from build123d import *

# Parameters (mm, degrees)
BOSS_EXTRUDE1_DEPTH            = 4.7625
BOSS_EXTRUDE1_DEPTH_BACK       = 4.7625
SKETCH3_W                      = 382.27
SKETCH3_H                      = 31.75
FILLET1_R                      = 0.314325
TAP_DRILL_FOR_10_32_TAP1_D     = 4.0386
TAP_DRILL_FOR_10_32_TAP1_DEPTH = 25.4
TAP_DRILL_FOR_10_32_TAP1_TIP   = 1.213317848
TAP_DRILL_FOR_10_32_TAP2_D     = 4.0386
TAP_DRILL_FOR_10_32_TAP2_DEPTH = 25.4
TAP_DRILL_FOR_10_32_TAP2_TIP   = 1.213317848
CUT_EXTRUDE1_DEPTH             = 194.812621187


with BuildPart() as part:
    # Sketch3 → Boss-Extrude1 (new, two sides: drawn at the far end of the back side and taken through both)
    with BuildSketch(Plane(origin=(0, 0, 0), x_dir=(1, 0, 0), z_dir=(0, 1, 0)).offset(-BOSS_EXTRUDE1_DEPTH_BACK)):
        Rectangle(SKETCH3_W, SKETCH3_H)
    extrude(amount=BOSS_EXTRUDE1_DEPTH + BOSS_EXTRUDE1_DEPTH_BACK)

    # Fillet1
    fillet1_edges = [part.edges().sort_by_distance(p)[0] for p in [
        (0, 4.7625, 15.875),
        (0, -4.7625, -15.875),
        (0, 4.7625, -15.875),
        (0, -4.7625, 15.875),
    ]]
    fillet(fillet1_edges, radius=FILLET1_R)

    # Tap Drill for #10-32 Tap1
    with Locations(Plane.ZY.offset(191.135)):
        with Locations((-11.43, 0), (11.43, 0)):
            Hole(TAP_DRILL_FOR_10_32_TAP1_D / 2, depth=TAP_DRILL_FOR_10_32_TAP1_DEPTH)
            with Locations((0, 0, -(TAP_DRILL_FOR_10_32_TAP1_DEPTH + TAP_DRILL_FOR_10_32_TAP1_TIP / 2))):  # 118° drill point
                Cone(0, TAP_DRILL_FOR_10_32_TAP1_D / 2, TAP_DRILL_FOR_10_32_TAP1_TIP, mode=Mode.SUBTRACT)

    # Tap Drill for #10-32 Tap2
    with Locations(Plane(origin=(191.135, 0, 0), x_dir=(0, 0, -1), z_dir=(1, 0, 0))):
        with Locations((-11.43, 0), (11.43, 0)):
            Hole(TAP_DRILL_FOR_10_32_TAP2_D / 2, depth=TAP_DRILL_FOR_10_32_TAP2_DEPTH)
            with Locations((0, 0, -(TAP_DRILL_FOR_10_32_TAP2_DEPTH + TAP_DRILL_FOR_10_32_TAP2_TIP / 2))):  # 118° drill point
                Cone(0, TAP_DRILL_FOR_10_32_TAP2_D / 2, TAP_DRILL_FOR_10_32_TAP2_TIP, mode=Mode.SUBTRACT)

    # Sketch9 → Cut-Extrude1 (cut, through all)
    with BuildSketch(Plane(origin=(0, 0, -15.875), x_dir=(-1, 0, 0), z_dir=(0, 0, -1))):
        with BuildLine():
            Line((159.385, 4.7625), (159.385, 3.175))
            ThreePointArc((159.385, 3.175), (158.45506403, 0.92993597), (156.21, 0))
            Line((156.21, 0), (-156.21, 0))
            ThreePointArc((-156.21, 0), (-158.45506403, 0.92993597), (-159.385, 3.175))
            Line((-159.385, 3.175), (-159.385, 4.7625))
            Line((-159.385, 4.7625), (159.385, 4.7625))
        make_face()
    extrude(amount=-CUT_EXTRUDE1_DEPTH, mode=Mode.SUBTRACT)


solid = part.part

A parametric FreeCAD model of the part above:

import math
import FreeCAD as App
import Part
import Sketcher
from FreeCAD import Vector
Q = App.Units.Quantity


def edges_at(feature, points):
    """Names of the edges that pass closest to the given points."""
    edges = feature.Shape.Edges
    near = lambda p: min(range(len(edges)), key=lambda i: edges[i].distToShape(Part.Vertex(*p))[0])
    return sorted({f"Edge{near(p) + 1}" for p in points})


def add_polygon(sketch, points):
    """Adds a closed chain of lines whose ends are joined by coincident constraints."""
    first, n = sketch.GeometryCount, len(points)
    for a, b in zip(points, points[1:] + points[:1]):
        sketch.addGeometry(Part.LineSegment(App.Vector(*a, 0), App.Vector(*b, 0)), False)
    for i in range(n):
        sketch.addConstraint(Sketcher.Constraint("Coincident", first + i, 2, first + (i + 1) % n, 1))

doc = App.newDocument("Part")
body = doc.addObject("PartDesign::Body", "Body")

sketch1 = body.newObject("Sketcher::SketchObject", "Sketch")
sketch1.AttachmentSupport = (doc.getObject("XZ_Plane"), [""])
sketch1.MapMode = "FlatFace"
add_polygon(sketch1, [(-191.135, -15.875), (-191.135, 15.875), (191.135, 15.875), (191.135, -15.875)])
sketch1.addConstraint([
    Sketcher.Constraint("Vertical", 0),
    Sketcher.Constraint("Horizontal", 1),
    Sketcher.Constraint("Vertical", 2),
    Sketcher.Constraint("Horizontal", 3),
    Sketcher.Constraint("Symmetric", 0, 2, 2, 2, -1, 1),
    Sketcher.Constraint("DistanceX", 1, 1, 1, 2, Q("15.05 in")),
    Sketcher.Constraint("DistanceY", 0, 1, 0, 2, Q("1.25 in")),
])
pad1 = body.newObject("PartDesign::Pad", "Pad")
pad1.Profile = sketch1
pad1.Type = "TwoLengths"
pad1.Length = Q("0.1875 in")
pad1.Length2 = Q("0.1875 in")
pad1.Reversed = True
doc.recompute()

fillet = body.newObject("PartDesign::Fillet", "Fillet")
fillet.Base = (pad1, edges_at(pad1, [
    (0, 4.763, 15.875),
    (0, -4.763, -15.875),
    (0, 4.763, -15.875),
    (0, -4.763, 15.875),
]))
fillet.Radius = 0.314325

sketch2 = body.newObject("Sketcher::SketchObject", "Sketch001")
sketch2.AttachmentSupport = (doc.getObject("YZ_Plane"), [""])
sketch2.MapMode = "FlatFace"
sketch2.AttachmentOffset = App.Placement(Vector(0, 0, -7.525 * 25.4), App.Rotation())
sketch2.addGeometry([
    Part.Circle(Vector(0, -11.43, 0), Vector(0, 0, 1), 2.0193),
    Part.Circle(Vector(0, 11.43, 0), Vector(0, 0, 1), 2.0193),
], False)
sketch2.addConstraint([
    Sketcher.Constraint("Equal", 0, 1),
    Sketcher.Constraint("Symmetric", 0, 3, 1, 3, -1, 1),
    Sketcher.Constraint("PointOnObject", 0, 3, -2),
    Sketcher.Constraint("Diameter", 0, Q("0.159 in")),
    Sketcher.Constraint("DistanceY", 0, 3, 1, 3, Q("0.9 in")),
])
doc.recompute()
hole = body.newObject("PartDesign::Hole", "Hole")
hole.Profile = sketch2
hole.ThreadType = "None"
hole.Diameter = Q("0.159 in")
hole.DepthType = "Dimension"
hole.Depth = Q("1 in")
hole.DrillPoint = "Angled"
hole.DrillPointAngle = 118
hole.Reversed = True

sketch3 = body.newObject("Sketcher::SketchObject", "Sketch002")
sketch3.AttachmentSupport = (doc.getObject("YZ_Plane"), [""])
sketch3.MapMode = "FlatFace"
sketch3.AttachmentOffset = App.Placement(Vector(0, 0, 7.525 * 25.4), App.Rotation())
sketch3.addGeometry([
    Part.Circle(Vector(0, 11.43, 0), Vector(0, 0, 1), 2.0193),
    Part.Circle(Vector(0, -11.43, 0), Vector(0, 0, 1), 2.0193),
], False)
sketch3.addConstraint([
    Sketcher.Constraint("Equal", 0, 1),
    Sketcher.Constraint("Symmetric", 0, 3, 1, 3, -1, 1),
    Sketcher.Constraint("PointOnObject", 0, 3, -2),
    Sketcher.Constraint("Diameter", 0, Q("0.159 in")),
    Sketcher.Constraint("DistanceY", 1, 3, 0, 3, Q("0.9 in")),
])
doc.recompute()
hole2 = body.newObject("PartDesign::Hole", "Hole001")
hole2.Profile = sketch3
hole2.ThreadType = "None"
hole2.Diameter = Q("0.159 in")
hole2.DepthType = "Dimension"
hole2.Depth = Q("1 in")
hole2.DrillPoint = "Angled"
hole2.DrillPointAngle = 118

sketch4 = body.newObject("Sketcher::SketchObject", "Sketch003")
sketch4.AttachmentSupport = (doc.getObject("XY_Plane"), [""])
sketch4.MapMode = "FlatFace"
sketch4.AttachmentOffset = App.Placement(Vector(0, 0, -0.625 * 25.4), App.Rotation())
sketch4.addGeometry([
    Part.LineSegment(Vector(-159.385, 3.175, 0), Vector(-159.385, 4.7625, 0)),
    Part.LineSegment(Vector(-159.385, 4.7625, 0), Vector(159.385, 4.7625, 0)),
    Part.LineSegment(Vector(159.385, 4.7625, 0), Vector(159.385, 3.175, 0)),
    Part.ArcOfCircle(Part.Circle(Vector(156.21, 3.175, 0), Vector(0, 0, 1), 3.175), math.radians(-90), math.radians(0)),
    Part.LineSegment(Vector(156.21, 0, 0), Vector(-156.21, 0, 0)),
    Part.ArcOfCircle(Part.Circle(Vector(-156.21, 3.175, 0), Vector(0, 0, 1), 3.175), math.radians(-180), math.radians(-90)),
], False)
sketch4.addConstraint([
    Sketcher.Constraint("Coincident", 0, 2, 1, 1),
    Sketcher.Constraint("Coincident", 1, 2, 2, 1),
    Sketcher.Constraint("Tangent", 2, 2, 3, 2),
    Sketcher.Constraint("Tangent", 3, 1, 4, 1),
    Sketcher.Constraint("Tangent", 4, 2, 5, 2),
    Sketcher.Constraint("Tangent", 5, 1, 0, 1),
    Sketcher.Constraint("Vertical", 0),
    Sketcher.Constraint("Horizontal", 1),
    Sketcher.Constraint("Vertical", 2),
    Sketcher.Constraint("Horizontal", 4),
    Sketcher.Constraint("Equal", 3, 5),
    Sketcher.Constraint("Symmetric", 3, 1, 4, 2, -1, 1),
    Sketcher.Constraint("DistanceX", 4, 2, 4, 1, Q("12.3 in")),
    Sketcher.Constraint("Radius", 3, Q("0.125 in")),
    Sketcher.Constraint("DistanceY", 0, 1, 0, 2, Q("0.0625 in")),
])
pocket1 = body.newObject("PartDesign::Pocket", "Pocket")
pocket1.Profile = sketch4
pocket1.Type = "ThroughAll"
pocket1.Reversed = True

doc.recompute()
